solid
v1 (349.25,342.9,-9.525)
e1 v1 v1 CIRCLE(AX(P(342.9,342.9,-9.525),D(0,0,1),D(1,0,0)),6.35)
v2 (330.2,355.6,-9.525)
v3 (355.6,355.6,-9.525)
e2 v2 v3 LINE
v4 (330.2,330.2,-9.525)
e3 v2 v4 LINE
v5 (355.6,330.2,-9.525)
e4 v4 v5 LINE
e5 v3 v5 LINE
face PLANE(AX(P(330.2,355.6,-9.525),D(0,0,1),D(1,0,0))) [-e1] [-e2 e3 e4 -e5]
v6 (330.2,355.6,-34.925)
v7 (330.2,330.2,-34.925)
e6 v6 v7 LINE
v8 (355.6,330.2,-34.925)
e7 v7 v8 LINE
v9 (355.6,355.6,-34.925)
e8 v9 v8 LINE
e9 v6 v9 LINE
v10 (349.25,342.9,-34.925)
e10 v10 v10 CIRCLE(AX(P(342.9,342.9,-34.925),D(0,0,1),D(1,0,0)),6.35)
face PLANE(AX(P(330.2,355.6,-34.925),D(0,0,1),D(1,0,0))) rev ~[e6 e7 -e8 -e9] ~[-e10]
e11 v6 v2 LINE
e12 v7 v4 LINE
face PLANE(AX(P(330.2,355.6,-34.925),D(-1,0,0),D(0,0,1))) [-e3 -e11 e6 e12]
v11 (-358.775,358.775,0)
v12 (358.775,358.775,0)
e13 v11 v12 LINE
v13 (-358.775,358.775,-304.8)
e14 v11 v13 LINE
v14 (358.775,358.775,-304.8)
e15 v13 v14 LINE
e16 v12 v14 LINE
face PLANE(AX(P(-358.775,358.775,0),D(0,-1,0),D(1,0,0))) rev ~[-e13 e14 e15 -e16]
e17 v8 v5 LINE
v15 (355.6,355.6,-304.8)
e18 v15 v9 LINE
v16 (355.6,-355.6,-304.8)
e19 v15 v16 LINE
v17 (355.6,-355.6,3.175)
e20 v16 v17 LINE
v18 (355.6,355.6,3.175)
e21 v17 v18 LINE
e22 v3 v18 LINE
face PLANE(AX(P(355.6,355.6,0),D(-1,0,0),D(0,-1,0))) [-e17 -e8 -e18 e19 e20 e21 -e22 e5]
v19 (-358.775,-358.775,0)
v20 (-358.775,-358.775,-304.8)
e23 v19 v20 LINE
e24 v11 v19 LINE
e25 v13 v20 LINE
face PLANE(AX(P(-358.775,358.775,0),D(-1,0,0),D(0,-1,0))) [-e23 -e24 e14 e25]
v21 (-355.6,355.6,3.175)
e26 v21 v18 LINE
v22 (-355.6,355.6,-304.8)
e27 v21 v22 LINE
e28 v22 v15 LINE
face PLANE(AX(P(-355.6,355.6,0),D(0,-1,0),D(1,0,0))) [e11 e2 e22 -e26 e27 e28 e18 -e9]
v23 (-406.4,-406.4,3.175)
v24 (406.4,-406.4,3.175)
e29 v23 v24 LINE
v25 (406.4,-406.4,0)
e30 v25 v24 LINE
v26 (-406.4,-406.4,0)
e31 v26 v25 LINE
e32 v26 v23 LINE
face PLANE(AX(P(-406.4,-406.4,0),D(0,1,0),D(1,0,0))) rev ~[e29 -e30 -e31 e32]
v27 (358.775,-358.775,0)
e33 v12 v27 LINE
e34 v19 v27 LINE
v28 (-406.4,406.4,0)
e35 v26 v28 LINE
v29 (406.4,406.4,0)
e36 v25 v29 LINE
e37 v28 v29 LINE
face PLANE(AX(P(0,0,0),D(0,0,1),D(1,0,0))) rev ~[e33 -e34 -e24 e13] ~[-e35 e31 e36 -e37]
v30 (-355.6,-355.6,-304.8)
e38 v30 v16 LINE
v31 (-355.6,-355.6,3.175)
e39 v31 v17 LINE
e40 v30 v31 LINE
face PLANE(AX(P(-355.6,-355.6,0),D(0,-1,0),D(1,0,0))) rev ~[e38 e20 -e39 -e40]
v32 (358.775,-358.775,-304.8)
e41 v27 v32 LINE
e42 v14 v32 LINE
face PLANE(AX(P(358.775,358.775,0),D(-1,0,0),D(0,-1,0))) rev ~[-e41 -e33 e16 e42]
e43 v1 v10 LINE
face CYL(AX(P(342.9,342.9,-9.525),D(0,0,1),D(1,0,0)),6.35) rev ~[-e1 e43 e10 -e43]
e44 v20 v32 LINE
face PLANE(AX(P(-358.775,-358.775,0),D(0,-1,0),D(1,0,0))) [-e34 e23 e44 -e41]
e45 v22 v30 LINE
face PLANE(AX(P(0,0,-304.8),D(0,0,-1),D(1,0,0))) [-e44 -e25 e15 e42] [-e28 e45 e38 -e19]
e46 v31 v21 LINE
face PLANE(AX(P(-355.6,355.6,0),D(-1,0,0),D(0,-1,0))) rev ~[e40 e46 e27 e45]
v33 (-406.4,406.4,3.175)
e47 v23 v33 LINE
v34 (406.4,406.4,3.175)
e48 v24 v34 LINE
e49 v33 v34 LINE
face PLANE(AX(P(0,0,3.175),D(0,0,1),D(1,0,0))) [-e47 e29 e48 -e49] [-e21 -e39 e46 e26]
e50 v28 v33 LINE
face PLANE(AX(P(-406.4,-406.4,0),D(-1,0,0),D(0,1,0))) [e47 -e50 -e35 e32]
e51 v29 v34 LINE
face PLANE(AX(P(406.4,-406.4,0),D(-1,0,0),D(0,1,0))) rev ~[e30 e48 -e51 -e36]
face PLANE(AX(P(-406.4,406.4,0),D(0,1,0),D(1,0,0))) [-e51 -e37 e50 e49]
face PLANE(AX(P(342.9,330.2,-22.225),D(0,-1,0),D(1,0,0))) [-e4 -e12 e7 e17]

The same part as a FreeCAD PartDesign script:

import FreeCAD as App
import Part
import Sketcher
Q = App.Units.Quantity

doc = App.newDocument("Part")
params = doc.addObject("Spreadsheet::Sheet", "Params")
for row, (alias, value) in enumerate([
    ("sketch1_width", "32 in"),
    ("sketch1_width2", "28 in"),
    ("pad1_length", "0.125 in"),
    ("sketch2_width", "28 in"),
    ("sketch2_width2", "28.25 in"),
    ("pad2_length", "12 in"),
    ("sketch3_width", "1 in"),
    ("pad3_length", "1 in"),
    ("sketch4_diameter", "0.5 in"),
], start=1):
    params.set(f"A{row}", alias)
    params.set(f"B{row}", "=" + value)
    params.setAlias(f"B{row}", alias)

body = doc.addObject("PartDesign::Body", "Body")

# Sketch on XY plane
sketch1 = doc.addObject("Sketcher::SketchObject", "Sketch")
body.addObject(sketch1)
sketch1.AttachmentSupport = (doc.XY_Plane, [""])
sketch1.MapMode = "FlatFace"
sketch1.addGeometry([
    Part.LineSegment(App.Vector(-406, 406, 0), App.Vector(-406, -406, 0)),  # 0
    Part.LineSegment(App.Vector(-406, -406, 0), App.Vector(406, -406, 0)),  # 1
    Part.LineSegment(App.Vector(406, -406, 0), App.Vector(406, 406, 0)),  # 2
    Part.LineSegment(App.Vector(406, 406, 0), App.Vector(-406, 406, 0)),  # 3
    Part.LineSegment(App.Vector(356, -356, 0), App.Vector(-356, -356, 0)),  # 4
    Part.LineSegment(App.Vector(-356, -356, 0), App.Vector(-356, 356, 0)),  # 5
    Part.LineSegment(App.Vector(-356, 356, 0), App.Vector(356, 356, 0)),  # 6
    Part.LineSegment(App.Vector(356, 356, 0), App.Vector(356, -356, 0)),  # 7
], False)
sketch1.addConstraint([
    Sketcher.Constraint("Coincident", 0, 2, 1, 1),
    Sketcher.Constraint("Coincident", 1, 2, 2, 1),
    Sketcher.Constraint("Coincident", 2, 2, 3, 1),
    Sketcher.Constraint("Coincident", 3, 2, 0, 1),
    Sketcher.Constraint("Coincident", 4, 2, 5, 1),
    Sketcher.Constraint("Coincident", 5, 2, 6, 1),
    Sketcher.Constraint("Coincident", 6, 2, 7, 1),
    Sketcher.Constraint("Coincident", 7, 2, 4, 1),
    Sketcher.Constraint("Vertical", 0),
    Sketcher.Constraint("Horizontal", 1),
    Sketcher.Constraint("Vertical", 2),
    Sketcher.Constraint("Horizontal", 3),
    Sketcher.Constraint("Horizontal", 4),
    Sketcher.Constraint("Vertical", 5),
    Sketcher.Constraint("Horizontal", 6),
    Sketcher.Constraint("Vertical", 7),
    Sketcher.Constraint("Symmetric", 0, 2, 2, 2, -1, 1),
    Sketcher.Constraint("Symmetric", 4, 2, 6, 2, -1, 1),
    Sketcher.Constraint("Equal", 3, 0),
    Sketcher.Constraint("Equal", 6, 5),
    Sketcher.Constraint("DistanceX", 1, 1, 1, 2, Q("32 in")),
    Sketcher.Constraint("DistanceX", 4, 2, 4, 1, Q("28 in")),
])
sketch1.setExpression("Constraints[20]", "Params.sketch1_width")
sketch1.setExpression("Constraints[21]", "Params.sketch1_width2")
pad1 = doc.addObject("PartDesign::Pad", "Pad")
body.addObject(pad1)
pad1.Profile = sketch1
pad1.setExpression("Length", "Params.pad1_length")

# Sketch on XY plane
sketch2 = doc.addObject("Sketcher::SketchObject", "Sketch001")
body.addObject(sketch2)
sketch2.AttachmentSupport = (doc.XY_Plane, [""])
sketch2.MapMode = "FlatFace"
sketch2.addGeometry([
    Part.LineSegment(App.Vector(-359, -359, 0), App.Vector(-359, 359, 0)),  # 0
    Part.LineSegment(App.Vector(-359, 359, 0), App.Vector(359, 359, 0)),  # 1
    Part.LineSegment(App.Vector(359, 359, 0), App.Vector(359, -359, 0)),  # 2
    Part.LineSegment(App.Vector(359, -359, 0), App.Vector(-359, -359, 0)),  # 3
    Part.LineSegment(App.Vector(356, 356, 0), App.Vector(-356, 356, 0)),  # 4
    Part.LineSegment(App.Vector(-356, 356, 0), App.Vector(-356, -356, 0)),  # 5
    Part.LineSegment(App.Vector(-356, -356, 0), App.Vector(356, -356, 0)),  # 6
    Part.LineSegment(App.Vector(356, -356, 0), App.Vector(356, 356, 0)),  # 7
], False)
sketch2.addConstraint([
    Sketcher.Constraint("Coincident", 0, 2, 1, 1),
    Sketcher.Constraint("Coincident", 1, 2, 2, 1),
    Sketcher.Constraint("Coincident", 2, 2, 3, 1),
    Sketcher.Constraint("Coincident", 3, 2, 0, 1),
    Sketcher.Constraint("Coincident", 4, 2, 5, 1),
    Sketcher.Constraint("Coincident", 5, 2, 6, 1),
    Sketcher.Constraint("Coincident", 6, 2, 7, 1),
    Sketcher.Constraint("Coincident", 7, 2, 4, 1),
    Sketcher.Constraint("Vertical", 0),
    Sketcher.Constraint("Horizontal", 1),
    Sketcher.Constraint("Vertical", 2),
    Sketcher.Constraint("Horizontal", 3),
    Sketcher.Constraint("Horizontal", 4),
    Sketcher.Constraint("Vertical", 5),
    Sketcher.Constraint("Horizontal", 6),
    Sketcher.Constraint("Vertical", 7),
    Sketcher.Constraint("Symmetric", 0, 2, 2, 2, -1, 1),
    Sketcher.Constraint("Symmetric", 4, 2, 6, 2, -1, 1),
    Sketcher.Constraint("Equal", 3, 0),
    Sketcher.Constraint("Equal", 6, 5),
    Sketcher.Constraint("DistanceX", 4, 2, 4, 1, Q("28 in")),
    Sketcher.Constraint("DistanceX", 1, 1, 1, 2, Q("28.25 in")),
])
sketch2.setExpression("Constraints[20]", "Params.sketch2_width")
sketch2.setExpression("Constraints[21]", "Params.sketch2_width2")
pad2 = doc.addObject("PartDesign::Pad", "Pad001")
body.addObject(pad2)
pad2.Profile = sketch2
pad2.setExpression("Length", "Params.pad2_length")
pad2.Reversed = True

# Sketch on XZ plane
sketch3 = doc.addObject("Sketcher::SketchObject", "Sketch002")
body.addObject(sketch3)
sketch3.AttachmentSupport = (doc.XZ_Plane, [""])
sketch3.MapMode = "FlatFace"
sketch3.AttachmentOffset = App.Placement(App.Vector(0, 0, -14 * 25.4), App.Rotation())
sketch3.addGeometry([
    Part.LineSegment(App.Vector(330, -10, 0), App.Vector(330, -35, 0)),
    Part.LineSegment(App.Vector(330, -35, 0), App.Vector(356, -35, 0)),
    Part.LineSegment(App.Vector(356, -35, 0), App.Vector(356, -10, 0)),
    Part.LineSegment(App.Vector(356, -10, 0), App.Vector(330, -10, 0)),
], False)
sketch3.addConstraint([
    Sketcher.Constraint("Coincident", 0, 2, 1, 1),
    Sketcher.Constraint("Coincident", 1, 2, 2, 1),
    Sketcher.Constraint("Coincident", 2, 2, 3, 1),
    Sketcher.Constraint("Coincident", 3, 2, 0, 1),
    Sketcher.Constraint("Vertical", 0),
    Sketcher.Constraint("Horizontal", 1),
    Sketcher.Constraint("Vertical", 2),
    Sketcher.Constraint("Horizontal", 3),
    Sketcher.Constraint("Equal", 3, 0),
    Sketcher.Constraint("DistanceX", 1, 1, 1, 2, Q("1 in")),
    Sketcher.Constraint("DistanceX", -1, 1, 0, 2, Q("13 in")),
    Sketcher.Constraint("DistanceY", 0, 2, -1, 1, Q("1.375 in")),
])
sketch3.setExpression("Constraints[9]", "Params.sketch3_width")
pad3 = doc.addObject("PartDesign::Pad", "Pad002")
body.addObject(pad3)
pad3.Profile = sketch3
pad3.setExpression("Length", "Params.pad3_length")

# Sketch on XY plane
sketch4 = doc.addObject("Sketcher::SketchObject", "Sketch003")
body.addObject(sketch4)
sketch4.AttachmentSupport = (doc.XY_Plane, [""])
sketch4.MapMode = "FlatFace"
sketch4.AttachmentOffset = App.Placement(App.Vector(0, 0, -0.375 * 25.4), App.Rotation())
sketch4.addGeometry(Part.Circle(App.Vector(343, 343, 0), App.Vector(0, 0, 1), 6), False)
sketch4.addConstraint([
    Sketcher.Constraint("Diameter", 0, Q("0.5 in")),
    Sketcher.Constraint("DistanceX", -1, 1, 0, 3, Q("13.5 in")),
    Sketcher.Constraint("DistanceY", -1, 1, 0, 3, Q("13.5 in")),
])
sketch4.setExpression("Constraints[0]", "Params.sketch4_diameter")
pocket1 = doc.addObject("PartDesign::Pocket", "Pocket")
body.addObject(pocket1)
pocket1.Profile = sketch4
pocket1.Type = "ThroughAll"

doc.recompute()
